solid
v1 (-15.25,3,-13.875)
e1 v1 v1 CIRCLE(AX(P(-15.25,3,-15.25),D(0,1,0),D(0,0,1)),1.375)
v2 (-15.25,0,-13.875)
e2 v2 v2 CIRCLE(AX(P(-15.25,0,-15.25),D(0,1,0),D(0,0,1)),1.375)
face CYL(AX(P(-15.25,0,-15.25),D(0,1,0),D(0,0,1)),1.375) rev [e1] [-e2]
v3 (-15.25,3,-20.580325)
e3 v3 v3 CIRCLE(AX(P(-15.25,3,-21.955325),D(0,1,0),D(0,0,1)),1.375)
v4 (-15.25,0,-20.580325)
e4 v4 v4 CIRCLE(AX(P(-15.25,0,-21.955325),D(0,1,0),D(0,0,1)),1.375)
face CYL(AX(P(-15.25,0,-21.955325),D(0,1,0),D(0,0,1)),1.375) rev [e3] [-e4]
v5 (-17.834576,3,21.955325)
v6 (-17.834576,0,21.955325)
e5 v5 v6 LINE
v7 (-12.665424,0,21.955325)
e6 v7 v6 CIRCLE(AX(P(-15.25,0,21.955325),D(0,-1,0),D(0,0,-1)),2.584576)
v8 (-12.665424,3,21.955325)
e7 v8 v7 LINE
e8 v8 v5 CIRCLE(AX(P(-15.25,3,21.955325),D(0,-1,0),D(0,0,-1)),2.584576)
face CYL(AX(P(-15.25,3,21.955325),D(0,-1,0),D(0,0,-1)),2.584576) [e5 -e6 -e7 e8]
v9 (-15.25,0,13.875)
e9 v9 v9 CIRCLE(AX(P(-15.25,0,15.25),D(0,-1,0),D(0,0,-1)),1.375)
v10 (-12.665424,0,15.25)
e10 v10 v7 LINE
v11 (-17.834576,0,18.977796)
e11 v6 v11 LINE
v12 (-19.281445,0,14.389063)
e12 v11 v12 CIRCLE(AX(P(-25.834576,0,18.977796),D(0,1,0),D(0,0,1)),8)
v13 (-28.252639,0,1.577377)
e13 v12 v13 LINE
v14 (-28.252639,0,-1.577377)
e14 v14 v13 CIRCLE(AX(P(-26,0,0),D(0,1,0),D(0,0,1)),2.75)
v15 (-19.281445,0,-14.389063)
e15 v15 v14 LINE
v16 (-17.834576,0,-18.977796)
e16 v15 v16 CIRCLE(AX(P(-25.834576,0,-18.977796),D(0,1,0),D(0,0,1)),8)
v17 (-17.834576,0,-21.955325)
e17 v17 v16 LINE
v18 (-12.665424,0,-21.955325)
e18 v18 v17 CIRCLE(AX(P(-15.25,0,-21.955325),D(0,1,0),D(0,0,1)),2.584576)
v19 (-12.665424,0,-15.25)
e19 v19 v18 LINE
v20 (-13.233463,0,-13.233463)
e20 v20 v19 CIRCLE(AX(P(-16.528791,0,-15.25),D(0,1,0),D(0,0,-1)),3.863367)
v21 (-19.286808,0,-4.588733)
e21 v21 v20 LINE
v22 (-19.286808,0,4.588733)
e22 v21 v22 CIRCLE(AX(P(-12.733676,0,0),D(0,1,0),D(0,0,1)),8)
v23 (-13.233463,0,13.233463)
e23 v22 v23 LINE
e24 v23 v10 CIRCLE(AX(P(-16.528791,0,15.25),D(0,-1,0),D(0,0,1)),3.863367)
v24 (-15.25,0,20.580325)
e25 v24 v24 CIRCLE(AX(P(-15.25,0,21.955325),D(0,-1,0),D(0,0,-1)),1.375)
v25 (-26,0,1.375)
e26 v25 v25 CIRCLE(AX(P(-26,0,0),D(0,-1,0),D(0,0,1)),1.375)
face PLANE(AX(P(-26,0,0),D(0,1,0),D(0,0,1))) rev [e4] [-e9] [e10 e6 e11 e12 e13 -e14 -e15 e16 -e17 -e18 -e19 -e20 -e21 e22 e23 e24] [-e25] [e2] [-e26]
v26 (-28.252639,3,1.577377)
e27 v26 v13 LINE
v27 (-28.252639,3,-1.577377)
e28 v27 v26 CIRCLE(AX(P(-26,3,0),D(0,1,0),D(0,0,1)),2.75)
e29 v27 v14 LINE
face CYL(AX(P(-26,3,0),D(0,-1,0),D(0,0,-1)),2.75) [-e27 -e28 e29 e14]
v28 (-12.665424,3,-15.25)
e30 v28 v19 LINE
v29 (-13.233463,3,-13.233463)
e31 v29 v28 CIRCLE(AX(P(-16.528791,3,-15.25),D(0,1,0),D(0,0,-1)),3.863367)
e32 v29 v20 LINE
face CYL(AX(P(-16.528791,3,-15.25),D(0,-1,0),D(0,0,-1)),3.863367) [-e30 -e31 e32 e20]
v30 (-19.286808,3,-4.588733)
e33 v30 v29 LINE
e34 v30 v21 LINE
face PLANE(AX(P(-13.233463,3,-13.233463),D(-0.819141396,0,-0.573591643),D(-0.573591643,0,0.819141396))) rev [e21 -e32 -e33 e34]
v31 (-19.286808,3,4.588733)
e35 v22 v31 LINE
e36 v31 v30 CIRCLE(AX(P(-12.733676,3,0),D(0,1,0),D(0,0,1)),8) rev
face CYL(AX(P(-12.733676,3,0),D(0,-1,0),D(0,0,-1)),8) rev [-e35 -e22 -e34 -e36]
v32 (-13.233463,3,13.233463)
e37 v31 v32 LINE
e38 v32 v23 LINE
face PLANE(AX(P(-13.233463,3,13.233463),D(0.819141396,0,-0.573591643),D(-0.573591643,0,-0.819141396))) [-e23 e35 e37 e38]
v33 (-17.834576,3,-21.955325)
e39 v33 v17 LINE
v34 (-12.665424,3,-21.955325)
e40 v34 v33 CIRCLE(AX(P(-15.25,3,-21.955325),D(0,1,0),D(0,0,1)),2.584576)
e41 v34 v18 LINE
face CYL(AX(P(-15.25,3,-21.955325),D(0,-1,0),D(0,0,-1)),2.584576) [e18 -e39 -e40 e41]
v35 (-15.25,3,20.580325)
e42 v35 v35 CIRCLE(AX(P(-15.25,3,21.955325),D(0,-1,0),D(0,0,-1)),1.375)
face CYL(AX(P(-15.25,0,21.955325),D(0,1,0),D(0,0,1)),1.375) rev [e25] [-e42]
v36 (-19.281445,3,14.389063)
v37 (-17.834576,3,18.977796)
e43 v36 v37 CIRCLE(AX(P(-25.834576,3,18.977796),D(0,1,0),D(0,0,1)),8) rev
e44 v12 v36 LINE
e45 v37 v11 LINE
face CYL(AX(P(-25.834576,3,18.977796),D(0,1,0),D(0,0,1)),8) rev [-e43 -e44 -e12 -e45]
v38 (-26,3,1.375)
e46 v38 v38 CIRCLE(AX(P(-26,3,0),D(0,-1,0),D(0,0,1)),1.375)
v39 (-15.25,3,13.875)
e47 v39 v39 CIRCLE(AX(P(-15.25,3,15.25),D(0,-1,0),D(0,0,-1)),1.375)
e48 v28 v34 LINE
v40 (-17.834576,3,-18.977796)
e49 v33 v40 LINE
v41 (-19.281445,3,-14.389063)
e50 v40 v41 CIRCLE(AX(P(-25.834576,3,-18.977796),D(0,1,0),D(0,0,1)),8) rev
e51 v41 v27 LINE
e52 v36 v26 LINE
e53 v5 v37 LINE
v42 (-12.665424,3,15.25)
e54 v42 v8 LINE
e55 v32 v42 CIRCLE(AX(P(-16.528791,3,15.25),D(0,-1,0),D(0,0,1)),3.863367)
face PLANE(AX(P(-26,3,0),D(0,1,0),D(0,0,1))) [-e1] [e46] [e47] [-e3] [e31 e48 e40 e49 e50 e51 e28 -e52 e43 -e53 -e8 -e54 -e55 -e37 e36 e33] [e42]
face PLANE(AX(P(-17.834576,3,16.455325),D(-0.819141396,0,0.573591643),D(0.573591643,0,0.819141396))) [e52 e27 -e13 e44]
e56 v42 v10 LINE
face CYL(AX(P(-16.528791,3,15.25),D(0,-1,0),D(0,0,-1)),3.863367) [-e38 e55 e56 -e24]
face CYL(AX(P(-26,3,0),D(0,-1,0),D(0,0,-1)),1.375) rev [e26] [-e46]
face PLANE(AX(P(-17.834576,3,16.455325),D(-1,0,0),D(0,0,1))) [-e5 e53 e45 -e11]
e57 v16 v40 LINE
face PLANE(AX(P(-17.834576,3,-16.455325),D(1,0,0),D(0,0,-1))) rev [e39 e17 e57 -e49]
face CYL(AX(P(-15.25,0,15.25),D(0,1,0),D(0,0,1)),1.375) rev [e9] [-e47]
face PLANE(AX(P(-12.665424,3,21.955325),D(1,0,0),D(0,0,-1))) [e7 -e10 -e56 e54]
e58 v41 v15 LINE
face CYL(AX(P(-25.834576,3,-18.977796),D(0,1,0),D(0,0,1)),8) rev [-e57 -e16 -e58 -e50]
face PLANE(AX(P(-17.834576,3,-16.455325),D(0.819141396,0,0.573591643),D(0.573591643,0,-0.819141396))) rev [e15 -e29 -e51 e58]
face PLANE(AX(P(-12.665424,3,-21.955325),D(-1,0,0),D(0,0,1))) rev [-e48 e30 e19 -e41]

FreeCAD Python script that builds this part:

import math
import FreeCAD as App
import Part
import Sketcher
from FreeCAD import Vector
Q = App.Units.Quantity


def edges_at(feature, points):
    """Names of the edges that pass closest to the given points."""
    edges = feature.Shape.Edges
    near = lambda p: min(range(len(edges)), key=lambda i: edges[i].distToShape(Part.Vertex(*p))[0])
    return sorted({f"Edge{near(p) + 1}" for p in points})

doc = App.newDocument("Part")
params = doc.addObject("Spreadsheet::Sheet", "Params")
for row, (alias, value) in enumerate([
    ("sketch1_radius", "2.75 mm"),
    ("sketch1_height", "5.5 mm"),
    ("pad1_length", "3 mm"),
    ("sketch2_diameter", "2.75 mm"),
    ("fillet_radius", "8 mm"),
], start=1):
    params.set(f"A{row}", alias)
    params.set(f"B{row}", "=" + value)
    params.setAlias(f"B{row}", alias)

body = doc.addObject("PartDesign::Body", "Body")

sketch1 = body.newObject("Sketcher::SketchObject", "Sketch")
sketch1.AttachmentSupport = (doc.getObject("XZ_Plane"), [""])
sketch1.MapMode = "FlatFace"
sketch1.addGeometry(Part.LineSegment(Vector(-12.7, -15.2, 0), Vector(-12.7, -22, 0)), False)
sketch1.addGeometry(Part.ArcOfCircle(Part.Circle(Vector(-15.2, -22, 0), Vector(0, 0, 1), 2.6), math.radians(180), math.radians(360)), False)
sketch1.addGeometry(Part.LineSegment(Vector(-17.8, -22, 0), Vector(-17.8, -16.5, 0)), False)
sketch1.addGeometry(Part.LineSegment(Vector(-17.8, -16.5, 0), Vector(-28.3, -1.6, 0)), False)
sketch1.addGeometry(Part.ArcOfCircle(Part.Circle(Vector(-26, 0, 0), Vector(0, 0, 1), 2.7), math.radians(180), math.radians(215)), False)
sketch1.addGeometry(Part.LineSegment(Vector(-28.8, 0, 0), Vector(-27.4, 0, 0)), False)
sketch1.addGeometry(Part.ArcOfCircle(Part.Circle(Vector(-26, 0, 0), Vector(0, 0, 1), 1.4), math.radians(180), math.radians(360)), False)
sketch1.addGeometry(Part.LineSegment(Vector(-24.6, 0, 0), Vector(-22.5, 0, 0)), False)
sketch1.addGeometry(Part.LineSegment(Vector(-22.5, 0, 0), Vector(-13.2, -13.2, 0)), False)
sketch1.addGeometry(Part.ArcOfCircle(Part.Circle(Vector(-16.5, -15.3, 0), Vector(0, 0, 1), 3.9), math.radians(0), math.radians(31)), False)
sketch1.addConstraint(Sketcher.Constraint("Tangent", 0, 2, 1, 2))
sketch1.addConstraint(Sketcher.Constraint("Tangent", 1, 1, 2, 1))
sketch1.addConstraint(Sketcher.Constraint("Coincident", 2, 2, 3, 1))
sketch1.addConstraint(Sketcher.Constraint("Tangent", 3, 2, 4, 2))
sketch1.addConstraint(Sketcher.Constraint("Coincident", 4, 1, 5, 1))
sketch1.addConstraint(Sketcher.Constraint("Coincident", 5, 2, 6, 1))
sketch1.addConstraint(Sketcher.Constraint("Coincident", 6, 2, 7, 1))
sketch1.addConstraint(Sketcher.Constraint("Coincident", 7, 2, 8, 1))
sketch1.addConstraint(Sketcher.Constraint("Coincident", 8, 2, 9, 2))
sketch1.addConstraint(Sketcher.Constraint("Tangent", 9, 1, 0, 1))
sketch1.addConstraint(Sketcher.Constraint("Vertical", 0))
sketch1.addConstraint(Sketcher.Constraint("Vertical", 2))
sketch1.addConstraint(Sketcher.Constraint("Horizontal", 5))
sketch1.addConstraint(Sketcher.Constraint("Horizontal", 7))
sketch1.addConstraint(Sketcher.Constraint("Coincident", 6, 3, 4, 3))
sketch1.addConstraint(Sketcher.Constraint("PointOnObject", 4, 3, -1))
sketch1.addConstraint(Sketcher.Constraint("PointOnObject", 4, 1, -1))
sketch1.addConstraint(Sketcher.Constraint("PointOnObject", 6, 2, -1))
sketch1.addConstraint(Sketcher.Constraint("Parallel", 3, 8))
sketch1.addConstraint(Sketcher.Constraint("Radius", 4, Q("2.75 mm")))
sketch1.addConstraint(Sketcher.Constraint("DistanceY", 2, 1, 2, 2, Q("5.5 mm")))
sketch1.addConstraint(Sketcher.Constraint("DistanceX", 4, 3, -1, 1, Q("26 mm")))
sketch1.addConstraint(Sketcher.Constraint("Radius", 6, Q("1.375 mm")))
sketch1.addConstraint(Sketcher.Constraint("DistanceX", 7, 2, -1, 1, Q("22.5 mm")))
sketch1.addConstraint(Sketcher.Constraint("DistanceX", 1, 3, -1, 1, Q("15.25 mm")))
sketch1.addConstraint(Sketcher.Constraint("DistanceY", 9, 3, -1, 1, Q("15.25 mm")))
sketch1.addConstraint(Sketcher.Constraint("Radius", 1, Q("2.584576 mm")))
sketch1.addConstraint(Sketcher.Constraint("Radius", 9, Q("3.863367 mm")))
sketch1.addConstraint(Sketcher.Constraint("DistanceY", 0, 2, 0, 1, Q("6.705325 mm")))
sketch1.setExpression("Constraints[19]", "Params.sketch1_radius")
sketch1.setExpression("Constraints[20]", "Params.sketch1_height")
pad1 = body.newObject("PartDesign::Pad", "Pad")
pad1.Profile = sketch1
pad1.setExpression("Length", "Params.pad1_length")
pad1.Reversed = True

sketch2 = body.newObject("Sketcher::SketchObject", "Sketch001")
sketch2.AttachmentSupport = (doc.getObject("XZ_Plane"), [""])
sketch2.MapMode = "FlatFace"
sketch2.AttachmentOffset = App.Placement(Vector(0, 0, -3), App.Rotation())
sketch2.addGeometry(Part.Circle(Vector(-15.2, -15.2, 0), Vector(0, 0, 1), 1.4), False)
sketch2.addGeometry(Part.Circle(Vector(-15.2, -22, 0), Vector(0, 0, 1), 1.4), False)
sketch2.addConstraint(Sketcher.Constraint("Equal", 0, 1))
sketch2.addConstraint(Sketcher.Constraint("Vertical", 0, 3, 1, 3))
sketch2.addConstraint(Sketcher.Constraint("Diameter", 0, Q("2.75 mm")))
sketch2.addConstraint(Sketcher.Constraint("DistanceX", 0, 3, -1, 1, Q("15.25 mm")))
sketch2.addConstraint(Sketcher.Constraint("DistanceY", 0, 3, -1, 1, Q("15.25 mm")))
sketch2.addConstraint(Sketcher.Constraint("DistanceY", 1, 3, -1, 1, Q("21.955325 mm")))
sketch2.setExpression("Constraints[2]", "Params.sketch2_diameter")
pocket1 = body.newObject("PartDesign::Pocket", "Pocket")
pocket1.Profile = sketch2
pocket1.Type = "ThroughAll"
pocket1.Reversed = True
doc.recompute()

mirrored = body.newObject("PartDesign::Mirrored", "Mirrored")
mirrored.Originals = [pad1, pocket1]
mirrored.MirrorPlane = (doc.getObject("XY_Plane"), [""])
body.Tip = mirrored
doc.recompute()

fillet = body.newObject("PartDesign::Fillet", "Fillet")
fillet.Base = (mirrored, edges_at(mirrored, [(-17.835, 1.5, -16.455), (-22.5, 1.5, 0), (-17.835, 1.5, 16.455)]))
fillet.setExpression("Radius", "Params.fillet_radius")

doc.recompute()
